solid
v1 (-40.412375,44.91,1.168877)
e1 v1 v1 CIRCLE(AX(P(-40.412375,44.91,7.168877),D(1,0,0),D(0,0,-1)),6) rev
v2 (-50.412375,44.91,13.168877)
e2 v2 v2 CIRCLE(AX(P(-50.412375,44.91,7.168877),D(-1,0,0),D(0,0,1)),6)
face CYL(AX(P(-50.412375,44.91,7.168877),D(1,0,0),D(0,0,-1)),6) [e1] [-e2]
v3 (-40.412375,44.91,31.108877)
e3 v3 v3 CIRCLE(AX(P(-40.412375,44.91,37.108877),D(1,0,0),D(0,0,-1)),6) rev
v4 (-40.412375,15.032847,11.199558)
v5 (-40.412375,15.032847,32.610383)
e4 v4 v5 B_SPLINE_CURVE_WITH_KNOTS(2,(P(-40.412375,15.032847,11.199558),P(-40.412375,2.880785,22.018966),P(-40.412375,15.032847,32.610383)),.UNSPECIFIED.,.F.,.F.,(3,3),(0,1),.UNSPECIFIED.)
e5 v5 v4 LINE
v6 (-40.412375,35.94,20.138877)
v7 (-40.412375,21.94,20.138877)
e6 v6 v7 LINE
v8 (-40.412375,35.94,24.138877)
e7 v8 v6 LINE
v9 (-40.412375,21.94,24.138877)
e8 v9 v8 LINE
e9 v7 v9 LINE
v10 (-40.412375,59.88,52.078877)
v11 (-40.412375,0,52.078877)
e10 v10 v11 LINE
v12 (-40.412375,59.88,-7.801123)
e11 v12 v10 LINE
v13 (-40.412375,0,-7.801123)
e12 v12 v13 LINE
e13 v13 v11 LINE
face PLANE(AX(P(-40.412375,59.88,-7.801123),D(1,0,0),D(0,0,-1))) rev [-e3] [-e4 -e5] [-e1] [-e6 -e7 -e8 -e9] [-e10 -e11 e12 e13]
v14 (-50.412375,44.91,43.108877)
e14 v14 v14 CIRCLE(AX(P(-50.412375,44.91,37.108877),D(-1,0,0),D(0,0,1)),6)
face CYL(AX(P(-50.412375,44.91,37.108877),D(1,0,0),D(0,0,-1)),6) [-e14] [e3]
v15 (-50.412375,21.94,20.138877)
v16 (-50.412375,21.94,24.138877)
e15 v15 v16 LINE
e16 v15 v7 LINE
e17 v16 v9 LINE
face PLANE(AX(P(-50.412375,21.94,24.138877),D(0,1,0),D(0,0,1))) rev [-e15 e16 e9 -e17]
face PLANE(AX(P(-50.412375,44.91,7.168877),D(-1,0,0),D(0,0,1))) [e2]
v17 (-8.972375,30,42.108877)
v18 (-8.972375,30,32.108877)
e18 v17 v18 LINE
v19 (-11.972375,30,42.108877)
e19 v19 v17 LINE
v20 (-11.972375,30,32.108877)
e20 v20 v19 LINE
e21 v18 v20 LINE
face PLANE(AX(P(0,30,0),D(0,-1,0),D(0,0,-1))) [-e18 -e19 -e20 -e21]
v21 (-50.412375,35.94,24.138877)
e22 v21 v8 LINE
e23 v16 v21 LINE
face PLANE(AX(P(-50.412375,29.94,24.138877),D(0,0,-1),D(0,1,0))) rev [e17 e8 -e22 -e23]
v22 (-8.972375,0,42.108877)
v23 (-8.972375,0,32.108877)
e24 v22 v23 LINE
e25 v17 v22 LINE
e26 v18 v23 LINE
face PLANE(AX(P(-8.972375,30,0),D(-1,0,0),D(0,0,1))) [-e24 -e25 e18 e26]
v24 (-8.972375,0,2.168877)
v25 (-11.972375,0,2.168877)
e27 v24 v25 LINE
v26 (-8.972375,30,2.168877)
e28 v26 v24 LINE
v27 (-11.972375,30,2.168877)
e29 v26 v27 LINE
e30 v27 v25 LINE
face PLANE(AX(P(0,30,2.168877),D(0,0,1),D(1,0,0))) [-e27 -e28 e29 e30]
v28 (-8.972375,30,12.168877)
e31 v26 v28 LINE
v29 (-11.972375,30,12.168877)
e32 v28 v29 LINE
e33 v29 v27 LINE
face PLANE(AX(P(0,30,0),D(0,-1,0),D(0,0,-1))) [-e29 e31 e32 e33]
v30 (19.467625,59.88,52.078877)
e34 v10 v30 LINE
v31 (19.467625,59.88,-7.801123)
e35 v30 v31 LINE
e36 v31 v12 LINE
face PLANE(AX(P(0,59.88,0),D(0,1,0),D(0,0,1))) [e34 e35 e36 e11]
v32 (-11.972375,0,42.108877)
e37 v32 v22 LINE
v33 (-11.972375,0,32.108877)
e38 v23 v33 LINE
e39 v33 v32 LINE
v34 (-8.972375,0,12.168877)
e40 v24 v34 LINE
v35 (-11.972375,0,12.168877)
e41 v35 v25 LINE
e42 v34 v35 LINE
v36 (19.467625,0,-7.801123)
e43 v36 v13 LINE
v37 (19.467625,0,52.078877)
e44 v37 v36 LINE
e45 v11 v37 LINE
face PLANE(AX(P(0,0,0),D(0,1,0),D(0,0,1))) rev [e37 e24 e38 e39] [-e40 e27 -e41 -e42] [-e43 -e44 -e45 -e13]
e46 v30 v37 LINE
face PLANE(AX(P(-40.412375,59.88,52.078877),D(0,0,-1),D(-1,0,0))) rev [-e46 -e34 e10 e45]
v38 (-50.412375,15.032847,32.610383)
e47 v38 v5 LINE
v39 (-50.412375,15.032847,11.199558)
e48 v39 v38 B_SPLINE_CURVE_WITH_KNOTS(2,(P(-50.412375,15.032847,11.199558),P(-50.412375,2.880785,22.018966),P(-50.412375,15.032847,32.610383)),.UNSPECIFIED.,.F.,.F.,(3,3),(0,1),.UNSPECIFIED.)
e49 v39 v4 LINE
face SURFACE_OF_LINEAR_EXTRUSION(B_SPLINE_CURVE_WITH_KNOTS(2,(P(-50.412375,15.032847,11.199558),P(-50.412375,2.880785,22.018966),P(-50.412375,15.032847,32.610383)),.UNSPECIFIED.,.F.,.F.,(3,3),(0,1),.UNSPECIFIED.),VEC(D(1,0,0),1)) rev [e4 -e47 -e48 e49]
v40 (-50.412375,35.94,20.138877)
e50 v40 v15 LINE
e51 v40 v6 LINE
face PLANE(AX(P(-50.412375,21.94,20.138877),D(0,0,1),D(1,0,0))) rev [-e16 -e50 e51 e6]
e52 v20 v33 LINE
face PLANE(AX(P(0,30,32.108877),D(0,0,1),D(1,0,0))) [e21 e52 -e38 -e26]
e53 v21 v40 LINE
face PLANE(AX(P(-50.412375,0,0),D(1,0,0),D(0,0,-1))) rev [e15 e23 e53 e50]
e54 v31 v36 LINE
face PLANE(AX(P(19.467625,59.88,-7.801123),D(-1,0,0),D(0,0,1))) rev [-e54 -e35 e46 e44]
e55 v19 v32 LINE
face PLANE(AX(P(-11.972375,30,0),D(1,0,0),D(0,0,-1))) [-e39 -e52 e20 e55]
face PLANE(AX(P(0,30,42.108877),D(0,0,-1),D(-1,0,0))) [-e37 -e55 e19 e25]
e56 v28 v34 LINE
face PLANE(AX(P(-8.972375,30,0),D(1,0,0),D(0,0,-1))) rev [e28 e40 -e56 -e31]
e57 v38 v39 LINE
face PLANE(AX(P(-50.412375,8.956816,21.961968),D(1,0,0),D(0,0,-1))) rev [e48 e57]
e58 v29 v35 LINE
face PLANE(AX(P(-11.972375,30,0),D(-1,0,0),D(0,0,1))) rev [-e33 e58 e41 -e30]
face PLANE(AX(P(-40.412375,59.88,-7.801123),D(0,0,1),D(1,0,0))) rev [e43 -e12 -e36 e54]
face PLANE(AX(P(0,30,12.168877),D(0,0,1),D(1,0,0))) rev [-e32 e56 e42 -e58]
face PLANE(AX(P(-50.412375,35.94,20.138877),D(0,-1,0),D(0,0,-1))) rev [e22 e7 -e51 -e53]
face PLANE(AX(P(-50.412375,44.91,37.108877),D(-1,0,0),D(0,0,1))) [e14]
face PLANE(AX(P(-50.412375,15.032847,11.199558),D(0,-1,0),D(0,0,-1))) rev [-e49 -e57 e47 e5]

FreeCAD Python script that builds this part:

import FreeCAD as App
import Part
import Sketcher
from FreeCAD import Vector
Q = App.Units.Quantity

doc = App.newDocument("Part")
body = doc.addObject("PartDesign::Body", "Body")

# Sketch on XZ plane
sketch1 = doc.addObject("Sketcher::SketchObject", "Sketch")
body.addObject(sketch1)
sketch1.AttachmentSupport = (doc.XZ_Plane, [""])
sketch1.MapMode = "FlatFace"
sketch1.addGeometry(Part.LineSegment(Vector(-40, -8, 0), Vector(-40, 52, 0)), False)
sketch1.addGeometry(Part.LineSegment(Vector(-40, 52, 0), Vector(19, 52, 0)), False)
sketch1.addGeometry(Part.LineSegment(Vector(19, 52, 0), Vector(19, -8, 0)), False)
sketch1.addGeometry(Part.LineSegment(Vector(19, -8, 0), Vector(-40, -8, 0)), False)
sketch1.addConstraint(Sketcher.Constraint("Coincident", 0, 2, 1, 1))
sketch1.addConstraint(Sketcher.Constraint("Coincident", 1, 2, 2, 1))
sketch1.addConstraint(Sketcher.Constraint("Coincident", 2, 2, 3, 1))
sketch1.addConstraint(Sketcher.Constraint("Coincident", 3, 2, 0, 1))
sketch1.addConstraint(Sketcher.Constraint("Vertical", 0))
sketch1.addConstraint(Sketcher.Constraint("Horizontal", 1))
sketch1.addConstraint(Sketcher.Constraint("Vertical", 2))
sketch1.addConstraint(Sketcher.Constraint("Horizontal", 3))
sketch1.addConstraint(Sketcher.Constraint("Equal", 3, 0))
sketch1.addConstraint(Sketcher.Constraint("DistanceX", 1, 1, 1, 2, Q("59.88 mm")))
sketch1.addConstraint(Sketcher.Constraint("DistanceX", 0, 2, -1, 1, Q("40.412375 mm")))
sketch1.addConstraint(Sketcher.Constraint("DistanceY", -1, 1, 0, 2, Q("52.078877 mm")))
pad1 = doc.addObject("PartDesign::Pad", "Pad")
body.addObject(pad1)
pad1.Profile = sketch1
pad1.Length = 59.88
pad1.Reversed = True

# Sketch on XZ plane
sketch2 = doc.addObject("Sketcher::SketchObject", "Sketch001")
body.addObject(sketch2)
sketch2.AttachmentSupport = (doc.XZ_Plane, [""])
sketch2.MapMode = "FlatFace"
sketch2.addGeometry(Part.LineSegment(Vector(-12, 12.2, 0), Vector(-12, 2.2, 0)), False)
sketch2.addGeometry(Part.LineSegment(Vector(-12, 2.2, 0), Vector(-9, 2.2, 0)), False)
sketch2.addGeometry(Part.LineSegment(Vector(-9, 2.2, 0), Vector(-9, 12.2, 0)), False)
sketch2.addGeometry(Part.LineSegment(Vector(-9, 12.2, 0), Vector(-12, 12.2, 0)), False)
sketch2.addGeometry(Part.LineSegment(Vector(-12, 32.1, 0), Vector(-9, 32.1, 0)), False)
sketch2.addGeometry(Part.LineSegment(Vector(-9, 32.1, 0), Vector(-9, 42.1, 0)), False)
sketch2.addGeometry(Part.LineSegment(Vector(-9, 42.1, 0), Vector(-12, 42.1, 0)), False)
sketch2.addGeometry(Part.LineSegment(Vector(-12, 42.1, 0), Vector(-12, 32.1, 0)), False)
sketch2.addConstraint(Sketcher.Constraint("Coincident", 0, 2, 1, 1))
sketch2.addConstraint(Sketcher.Constraint("Coincident", 1, 2, 2, 1))
sketch2.addConstraint(Sketcher.Constraint("Coincident", 2, 2, 3, 1))
sketch2.addConstraint(Sketcher.Constraint("Coincident", 3, 2, 0, 1))
sketch2.addConstraint(Sketcher.Constraint("Coincident", 4, 2, 5, 1))
sketch2.addConstraint(Sketcher.Constraint("Coincident", 5, 2, 6, 1))
sketch2.addConstraint(Sketcher.Constraint("Coincident", 6, 2, 7, 1))
sketch2.addConstraint(Sketcher.Constraint("Coincident", 7, 2, 4, 1))
sketch2.addConstraint(Sketcher.Constraint("Vertical", 0))
sketch2.addConstraint(Sketcher.Constraint("Horizontal", 1))
sketch2.addConstraint(Sketcher.Constraint("Vertical", 2))
sketch2.addConstraint(Sketcher.Constraint("Horizontal", 3))
sketch2.addConstraint(Sketcher.Constraint("Horizontal", 4))
sketch2.addConstraint(Sketcher.Constraint("Vertical", 5))
sketch2.addConstraint(Sketcher.Constraint("Horizontal", 6))
sketch2.addConstraint(Sketcher.Constraint("Vertical", 7))
sketch2.addConstraint(Sketcher.Constraint("Vertical", 2, 2, 4, 2))
sketch2.addConstraint(Sketcher.Constraint("Vertical", 3, 2, 6, 2))
sketch2.addConstraint(Sketcher.Constraint("Equal", 2, 5))
sketch2.addConstraint(Sketcher.Constraint("DistanceX", 1, 1, 1, 2, Q("3 mm")))
sketch2.addConstraint(Sketcher.Constraint("DistanceY", 0, 2, 0, 1, Q("10 mm")))
sketch2.addConstraint(Sketcher.Constraint("DistanceY", 2, 2, 4, 2, Q("19.94 mm")))
sketch2.addConstraint(Sketcher.Constraint("DistanceX", 0, 2, -1, 1, Q("11.972375 mm")))
sketch2.addConstraint(Sketcher.Constraint("DistanceY", -1, 1, 0, 2, Q("2.168877 mm")))
pocket1 = doc.addObject("PartDesign::Pocket", "Pocket")
body.addObject(pocket1)
pocket1.Profile = sketch2
pocket1.Length = 30

# Sketch on YZ plane
sketch3 = doc.addObject("Sketcher::SketchObject", "Sketch002")
body.addObject(sketch3)
sketch3.AttachmentSupport = (doc.YZ_Plane, [""])
sketch3.MapMode = "FlatFace"
sketch3.AttachmentOffset = App.Placement(Vector(0, 0, -40.412375), App.Rotation())
sketch3.addGeometry(Part.Circle(Vector(45, 7, 0), Vector(0, 0, 1), 6), False)
sketch3.addGeometry(Part.Circle(Vector(45, 37, 0), Vector(0, 0, 1), 6), False)
sketch3.addConstraint(Sketcher.Constraint("Equal", 0, 1))
sketch3.addConstraint(Sketcher.Constraint("Vertical", 0, 3, 1, 3))
sketch3.addConstraint(Sketcher.Constraint("Diameter", 0, Q("12 mm")))
sketch3.addConstraint(Sketcher.Constraint("DistanceX", -1, 1, 0, 3, Q("44.91 mm")))
sketch3.addConstraint(Sketcher.Constraint("DistanceY", 0, 3, 1, 3, Q("29.94 mm")))
sketch3.addConstraint(Sketcher.Constraint("DistanceY", -1, 1, 0, 3, Q("7.168877 mm")))
pad2 = doc.addObject("PartDesign::Pad", "Pad001")
body.addObject(pad2)
pad2.Profile = sketch3
pad2.Length = 10
pad2.Reversed = True

# Sketch on YZ plane
sketch4 = doc.addObject("Sketcher::SketchObject", "Sketch003")
body.addObject(sketch4)
sketch4.AttachmentSupport = (doc.YZ_Plane, [""])
sketch4.MapMode = "FlatFace"
sketch4.AttachmentOffset = App.Placement(Vector(0, 0, -40.412375), App.Rotation())
sketch4.addGeometry(Part.LineSegment(Vector(35.94, 20.138877, 0), Vector(21.94, 20.138877, 0)), False)
sketch4.addGeometry(Part.LineSegment(Vector(21.94, 20.138877, 0), Vector(21.94, 24.138877, 0)), False)
sketch4.addGeometry(Part.LineSegment(Vector(21.94, 24.138877, 0), Vector(35.94, 24.138877, 0)), False)
sketch4.addGeometry(Part.LineSegment(Vector(35.94, 24.138877, 0), Vector(35.94, 20.138877, 0)), False)
sketch4.addGeometry(Part.LineSegment(Vector(15.032847, 32.610383, 0), Vector(15.032847, 11.199558, 0)), False)
sketch4.addGeometry(Part.BSplineCurve([Vector(15.032847, 11.199558, 0), Vector(2.880785, 22.018966, 0), Vector(15.032847, 32.610383, 0)], [3, 3], [0, 1], False, 2, [1, 1, 1], False), False)
sketch4.addConstraint(Sketcher.Constraint("Block", 5))
sketch4.addConstraint(Sketcher.Constraint("Coincident", 0, 2, 1, 1))
sketch4.addConstraint(Sketcher.Constraint("Coincident", 1, 2, 2, 1))
sketch4.addConstraint(Sketcher.Constraint("Coincident", 2, 2, 3, 1))
sketch4.addConstraint(Sketcher.Constraint("Coincident", 3, 2, 0, 1))
sketch4.addConstraint(Sketcher.Constraint("Coincident", 4, 1, 5, 2))
sketch4.addConstraint(Sketcher.Constraint("Coincident", 5, 1, 4, 2))
sketch4.addConstraint(Sketcher.Constraint("Horizontal", 0))
sketch4.addConstraint(Sketcher.Constraint("Vertical", 1))
sketch4.addConstraint(Sketcher.Constraint("Horizontal", 2))
sketch4.addConstraint(Sketcher.Constraint("Vertical", 3))
sketch4.addConstraint(Sketcher.Constraint("DistanceX", 0, 2, 0, 1, Q("14 mm")))
sketch4.addConstraint(Sketcher.Constraint("DistanceY", 1, 1, 1, 2, Q("4 mm")))
sketch4.addConstraint(Sketcher.Constraint("DistanceX", -1, 1, 0, 2, Q("21.94 mm")))
sketch4.addConstraint(Sketcher.Constraint("DistanceY", -1, 1, 0, 2, Q("20.138877 mm")))
pad3 = doc.addObject("PartDesign::Pad", "Pad002")
body.addObject(pad3)
pad3.Profile = sketch4
pad3.Length = 10
pad3.Reversed = True

doc.recompute()
